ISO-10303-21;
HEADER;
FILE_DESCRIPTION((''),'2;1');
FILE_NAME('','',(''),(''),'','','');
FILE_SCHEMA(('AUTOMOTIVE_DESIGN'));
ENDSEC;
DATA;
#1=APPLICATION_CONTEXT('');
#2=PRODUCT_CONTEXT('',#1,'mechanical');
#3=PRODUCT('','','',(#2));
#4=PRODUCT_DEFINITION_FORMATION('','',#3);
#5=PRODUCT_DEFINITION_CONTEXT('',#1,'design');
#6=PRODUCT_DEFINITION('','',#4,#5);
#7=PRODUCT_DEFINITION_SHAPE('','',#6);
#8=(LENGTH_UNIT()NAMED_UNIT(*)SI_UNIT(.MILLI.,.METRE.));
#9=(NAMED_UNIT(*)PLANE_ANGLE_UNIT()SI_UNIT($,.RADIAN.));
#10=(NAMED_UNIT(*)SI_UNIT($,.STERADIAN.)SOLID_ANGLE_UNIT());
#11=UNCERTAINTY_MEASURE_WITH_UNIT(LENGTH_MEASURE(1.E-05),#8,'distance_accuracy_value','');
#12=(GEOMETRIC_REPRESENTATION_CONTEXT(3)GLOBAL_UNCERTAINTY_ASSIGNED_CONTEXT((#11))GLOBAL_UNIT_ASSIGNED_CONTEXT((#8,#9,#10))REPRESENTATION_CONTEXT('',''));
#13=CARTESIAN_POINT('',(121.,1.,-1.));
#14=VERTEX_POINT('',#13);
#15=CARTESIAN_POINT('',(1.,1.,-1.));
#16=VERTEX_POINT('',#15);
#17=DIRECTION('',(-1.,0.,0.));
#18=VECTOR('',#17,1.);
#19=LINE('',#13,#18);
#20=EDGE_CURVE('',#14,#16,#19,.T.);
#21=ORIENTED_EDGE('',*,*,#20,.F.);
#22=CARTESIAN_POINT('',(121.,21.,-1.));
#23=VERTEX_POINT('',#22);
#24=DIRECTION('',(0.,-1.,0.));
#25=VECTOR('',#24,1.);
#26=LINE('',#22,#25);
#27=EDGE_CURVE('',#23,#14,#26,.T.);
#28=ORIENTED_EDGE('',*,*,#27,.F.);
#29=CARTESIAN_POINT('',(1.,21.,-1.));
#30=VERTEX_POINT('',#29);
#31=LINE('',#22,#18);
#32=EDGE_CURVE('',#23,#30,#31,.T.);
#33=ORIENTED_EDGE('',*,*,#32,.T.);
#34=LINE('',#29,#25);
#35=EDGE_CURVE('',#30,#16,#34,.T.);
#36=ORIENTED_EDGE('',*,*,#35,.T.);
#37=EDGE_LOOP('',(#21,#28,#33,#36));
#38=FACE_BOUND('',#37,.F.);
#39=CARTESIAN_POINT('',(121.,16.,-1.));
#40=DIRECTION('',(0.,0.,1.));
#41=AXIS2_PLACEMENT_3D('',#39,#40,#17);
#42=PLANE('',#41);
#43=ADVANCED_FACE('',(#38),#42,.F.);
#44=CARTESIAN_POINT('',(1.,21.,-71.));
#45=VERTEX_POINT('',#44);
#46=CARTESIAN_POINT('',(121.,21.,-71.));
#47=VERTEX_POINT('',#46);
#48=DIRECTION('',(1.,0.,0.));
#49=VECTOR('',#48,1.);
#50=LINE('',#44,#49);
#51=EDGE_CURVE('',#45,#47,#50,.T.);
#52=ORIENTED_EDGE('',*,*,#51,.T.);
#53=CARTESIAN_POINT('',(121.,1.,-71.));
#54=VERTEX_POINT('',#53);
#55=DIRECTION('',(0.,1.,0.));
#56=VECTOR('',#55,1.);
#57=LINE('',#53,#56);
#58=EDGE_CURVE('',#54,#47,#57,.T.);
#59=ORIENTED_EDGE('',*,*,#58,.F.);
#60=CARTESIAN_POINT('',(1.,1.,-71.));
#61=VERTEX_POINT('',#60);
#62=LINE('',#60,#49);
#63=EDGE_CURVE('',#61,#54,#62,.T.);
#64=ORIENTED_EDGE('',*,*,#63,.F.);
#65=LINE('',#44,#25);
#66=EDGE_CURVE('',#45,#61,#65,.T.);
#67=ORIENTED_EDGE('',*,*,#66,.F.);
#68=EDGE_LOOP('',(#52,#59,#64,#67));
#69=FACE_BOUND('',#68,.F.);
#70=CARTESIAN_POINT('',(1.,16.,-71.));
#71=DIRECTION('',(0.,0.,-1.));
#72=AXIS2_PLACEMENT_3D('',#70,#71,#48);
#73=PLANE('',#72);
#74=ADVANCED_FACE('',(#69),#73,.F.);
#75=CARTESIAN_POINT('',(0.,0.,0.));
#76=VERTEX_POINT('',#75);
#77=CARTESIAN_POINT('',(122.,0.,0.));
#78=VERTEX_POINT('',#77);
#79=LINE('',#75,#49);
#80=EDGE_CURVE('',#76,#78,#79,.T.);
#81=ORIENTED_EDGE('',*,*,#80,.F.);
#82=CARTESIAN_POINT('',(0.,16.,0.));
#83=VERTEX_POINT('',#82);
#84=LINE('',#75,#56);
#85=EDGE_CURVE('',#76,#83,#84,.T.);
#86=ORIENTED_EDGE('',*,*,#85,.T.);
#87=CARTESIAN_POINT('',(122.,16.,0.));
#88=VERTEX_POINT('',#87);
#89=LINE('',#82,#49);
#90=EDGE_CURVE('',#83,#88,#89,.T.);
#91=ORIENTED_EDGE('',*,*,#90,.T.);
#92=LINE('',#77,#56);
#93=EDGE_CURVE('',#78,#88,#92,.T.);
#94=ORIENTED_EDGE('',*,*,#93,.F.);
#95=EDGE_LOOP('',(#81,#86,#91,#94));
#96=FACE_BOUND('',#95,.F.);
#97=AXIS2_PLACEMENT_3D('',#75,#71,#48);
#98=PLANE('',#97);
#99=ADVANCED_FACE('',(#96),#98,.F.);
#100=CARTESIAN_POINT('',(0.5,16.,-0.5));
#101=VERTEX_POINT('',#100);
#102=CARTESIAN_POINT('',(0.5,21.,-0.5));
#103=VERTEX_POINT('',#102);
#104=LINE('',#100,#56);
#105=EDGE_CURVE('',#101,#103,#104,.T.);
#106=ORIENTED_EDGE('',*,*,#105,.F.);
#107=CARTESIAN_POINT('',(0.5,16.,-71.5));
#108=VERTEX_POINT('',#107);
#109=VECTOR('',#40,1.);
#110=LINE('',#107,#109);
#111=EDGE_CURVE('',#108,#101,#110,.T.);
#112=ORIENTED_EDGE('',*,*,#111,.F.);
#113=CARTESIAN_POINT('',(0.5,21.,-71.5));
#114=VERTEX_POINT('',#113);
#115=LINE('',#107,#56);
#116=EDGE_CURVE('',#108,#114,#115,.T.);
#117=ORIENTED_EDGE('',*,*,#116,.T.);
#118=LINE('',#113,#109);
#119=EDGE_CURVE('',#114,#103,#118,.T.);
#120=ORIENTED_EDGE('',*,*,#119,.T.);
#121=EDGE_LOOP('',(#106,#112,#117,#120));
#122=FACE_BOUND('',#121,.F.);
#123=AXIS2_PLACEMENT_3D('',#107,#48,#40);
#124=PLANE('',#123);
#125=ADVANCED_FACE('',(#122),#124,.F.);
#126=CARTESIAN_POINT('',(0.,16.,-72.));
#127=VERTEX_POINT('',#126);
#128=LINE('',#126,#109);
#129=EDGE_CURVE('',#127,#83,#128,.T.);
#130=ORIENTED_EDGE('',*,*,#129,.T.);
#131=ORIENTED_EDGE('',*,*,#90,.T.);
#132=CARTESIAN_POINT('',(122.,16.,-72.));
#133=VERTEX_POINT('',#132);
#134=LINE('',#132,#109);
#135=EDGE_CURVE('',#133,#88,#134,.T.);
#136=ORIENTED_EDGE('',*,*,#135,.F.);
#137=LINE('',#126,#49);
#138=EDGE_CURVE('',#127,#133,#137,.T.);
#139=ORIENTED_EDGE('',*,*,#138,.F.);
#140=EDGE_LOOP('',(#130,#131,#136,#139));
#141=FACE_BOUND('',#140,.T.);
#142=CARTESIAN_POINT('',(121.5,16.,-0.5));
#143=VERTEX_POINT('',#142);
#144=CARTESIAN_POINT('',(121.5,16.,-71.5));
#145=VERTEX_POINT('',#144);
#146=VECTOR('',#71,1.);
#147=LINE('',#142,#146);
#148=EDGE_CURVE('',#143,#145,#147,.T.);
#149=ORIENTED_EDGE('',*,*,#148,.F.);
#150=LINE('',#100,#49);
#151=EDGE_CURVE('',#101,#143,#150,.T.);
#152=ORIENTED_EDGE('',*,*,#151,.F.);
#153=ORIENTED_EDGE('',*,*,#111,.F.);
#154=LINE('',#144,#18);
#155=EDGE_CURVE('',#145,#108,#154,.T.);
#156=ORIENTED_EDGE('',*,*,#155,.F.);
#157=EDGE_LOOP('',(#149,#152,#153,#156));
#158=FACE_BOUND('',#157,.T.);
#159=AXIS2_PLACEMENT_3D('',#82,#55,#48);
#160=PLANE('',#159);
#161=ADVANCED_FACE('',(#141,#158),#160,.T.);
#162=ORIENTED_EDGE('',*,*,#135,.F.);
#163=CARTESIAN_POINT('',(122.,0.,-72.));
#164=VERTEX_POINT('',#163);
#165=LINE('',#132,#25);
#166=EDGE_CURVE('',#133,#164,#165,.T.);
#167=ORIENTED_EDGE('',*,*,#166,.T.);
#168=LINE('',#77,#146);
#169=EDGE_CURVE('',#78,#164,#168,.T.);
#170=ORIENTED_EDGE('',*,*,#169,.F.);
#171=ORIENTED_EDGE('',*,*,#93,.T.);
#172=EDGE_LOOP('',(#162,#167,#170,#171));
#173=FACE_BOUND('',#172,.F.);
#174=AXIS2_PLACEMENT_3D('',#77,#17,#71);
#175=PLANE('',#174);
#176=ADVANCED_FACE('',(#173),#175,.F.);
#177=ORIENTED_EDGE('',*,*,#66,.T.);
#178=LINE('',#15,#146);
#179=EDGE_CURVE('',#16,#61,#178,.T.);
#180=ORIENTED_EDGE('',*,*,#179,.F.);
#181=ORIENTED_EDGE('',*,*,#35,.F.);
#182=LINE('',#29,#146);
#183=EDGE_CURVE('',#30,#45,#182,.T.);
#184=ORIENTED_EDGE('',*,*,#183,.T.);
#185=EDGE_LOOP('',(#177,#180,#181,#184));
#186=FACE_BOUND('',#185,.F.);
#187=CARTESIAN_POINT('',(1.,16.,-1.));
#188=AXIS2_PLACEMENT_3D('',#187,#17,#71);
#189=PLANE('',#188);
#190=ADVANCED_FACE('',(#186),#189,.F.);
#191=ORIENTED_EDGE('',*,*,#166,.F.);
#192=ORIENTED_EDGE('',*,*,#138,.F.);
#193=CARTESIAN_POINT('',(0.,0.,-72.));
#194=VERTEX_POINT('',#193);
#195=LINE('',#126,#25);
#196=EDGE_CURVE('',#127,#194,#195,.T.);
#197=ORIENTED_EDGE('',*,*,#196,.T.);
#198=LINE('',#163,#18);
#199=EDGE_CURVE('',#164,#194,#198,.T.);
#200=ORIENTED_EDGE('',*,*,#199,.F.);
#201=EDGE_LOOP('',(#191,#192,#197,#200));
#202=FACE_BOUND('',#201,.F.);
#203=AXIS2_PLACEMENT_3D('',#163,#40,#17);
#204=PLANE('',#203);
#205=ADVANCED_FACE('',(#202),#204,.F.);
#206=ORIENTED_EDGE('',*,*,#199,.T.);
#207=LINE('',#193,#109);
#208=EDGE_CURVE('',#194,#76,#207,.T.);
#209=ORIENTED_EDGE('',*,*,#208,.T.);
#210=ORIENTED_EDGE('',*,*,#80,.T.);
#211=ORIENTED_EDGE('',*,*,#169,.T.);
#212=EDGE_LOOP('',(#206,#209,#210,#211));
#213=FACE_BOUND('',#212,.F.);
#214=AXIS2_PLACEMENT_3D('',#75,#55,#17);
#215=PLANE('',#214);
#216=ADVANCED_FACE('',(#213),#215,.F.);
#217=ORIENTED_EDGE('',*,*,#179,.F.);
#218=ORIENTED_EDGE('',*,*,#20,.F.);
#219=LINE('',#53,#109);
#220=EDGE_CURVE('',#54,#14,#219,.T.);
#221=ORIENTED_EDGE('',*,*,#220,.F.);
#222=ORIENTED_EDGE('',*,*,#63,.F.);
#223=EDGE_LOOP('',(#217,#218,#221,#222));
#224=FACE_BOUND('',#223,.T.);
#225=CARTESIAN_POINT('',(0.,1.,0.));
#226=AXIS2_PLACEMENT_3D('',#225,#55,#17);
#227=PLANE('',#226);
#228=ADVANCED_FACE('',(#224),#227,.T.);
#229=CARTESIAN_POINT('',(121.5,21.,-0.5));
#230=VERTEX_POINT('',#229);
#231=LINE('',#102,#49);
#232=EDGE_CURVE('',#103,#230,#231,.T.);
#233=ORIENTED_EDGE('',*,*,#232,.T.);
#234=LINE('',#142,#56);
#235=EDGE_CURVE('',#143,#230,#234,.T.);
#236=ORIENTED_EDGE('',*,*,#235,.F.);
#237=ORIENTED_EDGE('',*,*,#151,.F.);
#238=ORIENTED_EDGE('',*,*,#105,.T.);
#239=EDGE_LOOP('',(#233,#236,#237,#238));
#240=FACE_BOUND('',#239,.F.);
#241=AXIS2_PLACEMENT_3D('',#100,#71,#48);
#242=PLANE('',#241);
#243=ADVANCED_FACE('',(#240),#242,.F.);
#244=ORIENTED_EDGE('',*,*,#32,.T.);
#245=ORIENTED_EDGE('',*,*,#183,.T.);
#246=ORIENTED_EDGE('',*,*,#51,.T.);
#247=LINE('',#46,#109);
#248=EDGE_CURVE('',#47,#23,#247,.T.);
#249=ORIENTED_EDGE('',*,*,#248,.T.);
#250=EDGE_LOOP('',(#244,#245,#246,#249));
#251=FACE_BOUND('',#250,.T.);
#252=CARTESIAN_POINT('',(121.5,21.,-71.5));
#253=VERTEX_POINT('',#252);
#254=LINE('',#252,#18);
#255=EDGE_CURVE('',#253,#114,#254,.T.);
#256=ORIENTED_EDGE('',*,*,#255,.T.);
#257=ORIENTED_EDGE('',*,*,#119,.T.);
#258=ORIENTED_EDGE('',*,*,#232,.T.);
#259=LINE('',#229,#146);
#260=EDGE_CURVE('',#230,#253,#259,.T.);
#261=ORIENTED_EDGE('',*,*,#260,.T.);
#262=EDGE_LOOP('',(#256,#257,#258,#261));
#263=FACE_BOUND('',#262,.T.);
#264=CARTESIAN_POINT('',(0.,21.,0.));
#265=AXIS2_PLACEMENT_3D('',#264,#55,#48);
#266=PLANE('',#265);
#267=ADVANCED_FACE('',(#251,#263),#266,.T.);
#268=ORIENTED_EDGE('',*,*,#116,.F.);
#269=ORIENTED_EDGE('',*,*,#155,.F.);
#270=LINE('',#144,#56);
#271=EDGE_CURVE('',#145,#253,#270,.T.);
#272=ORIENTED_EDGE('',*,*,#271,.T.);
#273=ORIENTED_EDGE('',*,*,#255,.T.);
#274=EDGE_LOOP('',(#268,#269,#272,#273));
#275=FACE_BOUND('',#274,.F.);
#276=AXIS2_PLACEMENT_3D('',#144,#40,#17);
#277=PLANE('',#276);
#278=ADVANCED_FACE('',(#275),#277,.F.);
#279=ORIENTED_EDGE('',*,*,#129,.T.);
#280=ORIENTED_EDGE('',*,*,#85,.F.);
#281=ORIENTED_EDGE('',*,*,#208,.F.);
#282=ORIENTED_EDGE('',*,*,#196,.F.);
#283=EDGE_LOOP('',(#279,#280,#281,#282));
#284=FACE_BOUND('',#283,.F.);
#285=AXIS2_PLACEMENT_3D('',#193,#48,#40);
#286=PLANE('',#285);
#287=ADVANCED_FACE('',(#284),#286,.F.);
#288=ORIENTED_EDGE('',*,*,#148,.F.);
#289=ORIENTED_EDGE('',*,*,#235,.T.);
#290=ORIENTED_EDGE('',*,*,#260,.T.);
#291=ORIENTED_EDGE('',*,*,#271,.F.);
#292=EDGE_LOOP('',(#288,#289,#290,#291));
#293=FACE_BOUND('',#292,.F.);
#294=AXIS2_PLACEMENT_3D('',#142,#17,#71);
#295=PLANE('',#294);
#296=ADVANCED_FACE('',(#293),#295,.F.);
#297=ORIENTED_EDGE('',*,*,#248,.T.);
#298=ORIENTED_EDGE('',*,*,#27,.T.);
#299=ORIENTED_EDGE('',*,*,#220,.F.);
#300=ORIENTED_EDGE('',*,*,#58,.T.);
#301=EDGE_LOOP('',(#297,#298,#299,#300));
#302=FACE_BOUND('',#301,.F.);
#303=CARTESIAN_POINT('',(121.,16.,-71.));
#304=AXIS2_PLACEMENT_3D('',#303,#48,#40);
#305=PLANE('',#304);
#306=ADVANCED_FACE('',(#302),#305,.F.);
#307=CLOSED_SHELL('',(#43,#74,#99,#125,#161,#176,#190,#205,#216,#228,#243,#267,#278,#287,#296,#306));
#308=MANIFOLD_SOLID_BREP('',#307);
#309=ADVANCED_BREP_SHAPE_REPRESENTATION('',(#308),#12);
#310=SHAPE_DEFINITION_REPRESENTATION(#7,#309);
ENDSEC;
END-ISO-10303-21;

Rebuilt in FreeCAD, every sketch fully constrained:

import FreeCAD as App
import Part
import Sketcher

V = App.Vector


def add_polygon(sketch, points):
    """Adds a closed chain of lines whose ends are joined by coincident constraints."""
    first, n = sketch.GeometryCount, len(points)
    for a, b in zip(points, points[1:] + points[:1]):
        sketch.addGeometry(Part.LineSegment(App.Vector(*a, 0), App.Vector(*b, 0)), False)
    for i in range(n):
        sketch.addConstraint(Sketcher.Constraint("Coincident", first + i, 2, first + (i + 1) % n, 1))

doc = App.newDocument("Part")
body = doc.addObject("PartDesign::Body", "Body")

sketch1 = doc.addObject("Sketcher::SketchObject", "Sketch")
body.addObject(sketch1)
sketch1.AttachmentSupport = (doc.XZ_Plane, [""])
sketch1.MapMode = "FlatFace"
add_polygon(sketch1, [(0, -72), (0, 0), (122, 0), (122, -72)])
sketch1.addConstraint(Sketcher.Constraint("Vertical", 0))
sketch1.addConstraint(Sketcher.Constraint("Horizontal", 1))
sketch1.addConstraint(Sketcher.Constraint("Vertical", 2))
sketch1.addConstraint(Sketcher.Constraint("Horizontal", 3))
sketch1.addConstraint(Sketcher.Constraint("Coincident", 0, 2, -1, 1))
sketch1.addConstraint(Sketcher.Constraint("DistanceX", 1, 1, 1, 2, 122.0))
sketch1.addConstraint(Sketcher.Constraint("DistanceY", 0, 1, 0, 2, 72.0))
pad1 = doc.addObject("PartDesign::Pad", "Pad")
body.addObject(pad1)
pad1.Profile = sketch1
pad1.Length = 1
pad1.Reversed = True

sketch2 = doc.addObject("Sketcher::SketchObject", "Sketch001")
body.addObject(sketch2)
sketch2.AttachmentSupport = (doc.XZ_Plane, [""])
sketch2.MapMode = "FlatFace"
sketch2.AttachmentOffset = App.Placement(V(0, 0, -1), App.Rotation())
add_polygon(sketch2, [(122, -72), (0, -72), (0, 0), (122, 0)])
add_polygon(sketch2, [(1, -71), (121, -71), (121, -1), (1, -1)])
sketch2.addConstraint(Sketcher.Constraint("Horizontal", 0))
sketch2.addConstraint(Sketcher.Constraint("Vertical", 1))
sketch2.addConstraint(Sketcher.Constraint("Horizontal", 2))
sketch2.addConstraint(Sketcher.Constraint("Vertical", 3))
sketch2.addConstraint(Sketcher.Constraint("Horizontal", 4))
sketch2.addConstraint(Sketcher.Constraint("Vertical", 5))
sketch2.addConstraint(Sketcher.Constraint("Horizontal", 6))
sketch2.addConstraint(Sketcher.Constraint("Vertical", 7))
sketch2.addConstraint(Sketcher.Constraint("Coincident", 1, 2, -1, 1))
sketch2.addConstraint(Sketcher.Constraint("DistanceY", 5, 2, -1, 1, 1.0))
sketch2.addConstraint(Sketcher.Constraint("DistanceX", -1, 1, 6, 2, 1.0))
sketch2.addConstraint(Sketcher.Constraint("DistanceX", 4, 2, 3, 2, 1.0))
sketch2.addConstraint(Sketcher.Constraint("DistanceY", 3, 2, 4, 2, 1.0))
sketch2.addConstraint(Sketcher.Constraint("DistanceX", 0, 2, 0, 1, 122.0))
sketch2.addConstraint(Sketcher.Constraint("DistanceY", 1, 1, 1, 2, 72.0))
pad2 = doc.addObject("PartDesign::Pad", "Pad001")
body.addObject(pad2)
pad2.Profile = sketch2
pad2.Length = 15
pad2.Reversed = True

sketch3 = doc.addObject("Sketcher::SketchObject", "Sketch002")
body.addObject(sketch3)
sketch3.AttachmentSupport = (doc.XZ_Plane, [""])
sketch3.MapMode = "FlatFace"
sketch3.AttachmentOffset = App.Placement(V(0, 0, -16), App.Rotation())
add_polygon(sketch3, [(0, -72), (0, 0), (122, 0), (122, -72)])
add_polygon(sketch3, [(1, -71), (121, -71), (121, -1), (1, -1)])
sketch3.addConstraint(Sketcher.Constraint("Vertical", 0))
sketch3.addConstraint(Sketcher.Constraint("Horizontal", 1))
sketch3.addConstraint(Sketcher.Constraint("Vertical", 2))
sketch3.addConstraint(Sketcher.Constraint("Horizontal", 3))
sketch3.addConstraint(Sketcher.Constraint("Horizontal", 4))
sketch3.addConstraint(Sketcher.Constraint("Vertical", 5))
sketch3.addConstraint(Sketcher.Constraint("Horizontal", 6))
sketch3.addConstraint(Sketcher.Constraint("Vertical", 7))
sketch3.addConstraint(Sketcher.Constraint("DistanceX", -1, 1, 0, 2, 0.5))
sketch3.addConstraint(Sketcher.Constraint("DistanceY", 0, 2, -1, 1, 0.5))
sketch3.addConstraint(Sketcher.Constraint("DistanceX", 4, 2, 2, 2, 0.5))
sketch3.addConstraint(Sketcher.Constraint("DistanceY", 2, 2, 4, 2, 0.5))
sketch3.addConstraint(Sketcher.Constraint("DistanceY", 5, 2, 1, 2, 0.5))
sketch3.addConstraint(Sketcher.Constraint("DistanceX", 0, 2, 6, 2, 0.5))
sketch3.addConstraint(Sketcher.Constraint("DistanceX", 1, 1, 1, 2, 121.0))
sketch3.addConstraint(Sketcher.Constraint("DistanceY", 0, 1, 0, 2, 71.0))
pad3 = doc.addObject("PartDesign::Pad", "Pad002")
body.addObject(pad3)
pad3.Profile = sketch3
pad3.Length = 5
pad3.Reversed = True

doc.recompute()
